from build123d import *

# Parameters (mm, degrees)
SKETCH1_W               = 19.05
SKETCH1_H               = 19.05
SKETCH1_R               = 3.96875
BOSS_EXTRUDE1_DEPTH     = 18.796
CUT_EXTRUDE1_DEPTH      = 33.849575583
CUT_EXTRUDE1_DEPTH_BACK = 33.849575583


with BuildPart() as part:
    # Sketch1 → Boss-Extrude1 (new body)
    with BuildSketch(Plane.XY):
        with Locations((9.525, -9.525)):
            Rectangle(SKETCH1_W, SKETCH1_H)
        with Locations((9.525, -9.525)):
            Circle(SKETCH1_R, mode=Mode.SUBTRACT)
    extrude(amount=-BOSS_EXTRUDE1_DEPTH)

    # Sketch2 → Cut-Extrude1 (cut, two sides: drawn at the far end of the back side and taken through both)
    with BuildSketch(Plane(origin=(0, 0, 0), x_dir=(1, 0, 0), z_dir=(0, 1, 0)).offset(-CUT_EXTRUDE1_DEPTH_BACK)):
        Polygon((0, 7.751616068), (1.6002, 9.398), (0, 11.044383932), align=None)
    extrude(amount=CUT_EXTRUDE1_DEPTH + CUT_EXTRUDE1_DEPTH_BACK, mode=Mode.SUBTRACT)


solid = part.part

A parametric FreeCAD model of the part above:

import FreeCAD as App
import Part
import Sketcher
from FreeCAD import Vector
Q = App.Units.Quantity


def add_polygon(sketch, points):
    """Adds a closed chain of lines whose ends are joined by coincident constraints."""
    first, n = sketch.GeometryCount, len(points)
    for a, b in zip(points, points[1:] + points[:1]):
        sketch.addGeometry(Part.LineSegment(App.Vector(*a, 0), App.Vector(*b, 0)), False)
    for i in range(n):
        sketch.addConstraint(Sketcher.Constraint("Coincident", first + i, 2, first + (i + 1) % n, 1))

doc = App.newDocument("Part")
body = doc.addObject("PartDesign::Body", "Body")

sketch1 = body.newObject("Sketcher::SketchObject", "Sketch")
sketch1.AttachmentSupport = (doc.getObject("XY_Plane"), [""])
sketch1.MapMode = "FlatFace"
add_polygon(sketch1, [(0, 0), (0, -19.1), (19.1, -19.1), (19.1, 0)])
sketch1.addGeometry(Part.Circle(Vector(9.5, -9.5, 0), Vector(0, 0, 1), 4), False)
sketch1.addConstraint([
    Sketcher.Constraint("Vertical", 0),
    Sketcher.Constraint("Horizontal", 1),
    Sketcher.Constraint("Vertical", 2),
    Sketcher.Constraint("Horizontal", 3),
    Sketcher.Constraint("Coincident", 3, 2, -1, 1),
    Sketcher.Constraint("Equal", 3, 0),
    Sketcher.Constraint("Diameter", 4, Q("0.3125 in")),
    Sketcher.Constraint("DistanceX", 1, 1, 1, 2, Q("0.75 in")),
    Sketcher.Constraint("DistanceX", -1, 1, 4, 3, Q("0.375 in")),
    Sketcher.Constraint("DistanceY", 4, 3, -1, 1, Q("0.375 in")),
])
pad1 = body.newObject("PartDesign::Pad", "Pad")
pad1.Profile = sketch1
pad1.Length = Q("0.74 in")
pad1.Reversed = True

sketch2 = body.newObject("Sketcher::SketchObject", "Sketch001")
sketch2.AttachmentSupport = (doc.getObject("XZ_Plane"), [""])
sketch2.MapMode = "FlatFace"
add_polygon(sketch2, [(0, -7.8), (1.6, -9.4), (0, -11)])
sketch2.addConstraint([
    Sketcher.Constraint("Vertical", 2),
    Sketcher.Constraint("PointOnObject", 1, 2, -2),
    Sketcher.Constraint("Equal", 0, 1),
    Sketcher.Constraint("DistanceY", 0, 2, -1, 1, Q("0.37 in")),
    Sketcher.Constraint("DistanceX", -1, 1, 0, 2, Q("0.063 in")),
    Sketcher.Constraint("DistanceY", 2, 1, 2, 2, Q("3.292768 mm")),
])
pocket1 = body.newObject("PartDesign::Pocket", "Pocket")
pocket1.Profile = sketch2
pocket1.Type = "ThroughAll"
pocket1.Midplane = True

doc.recompute()
